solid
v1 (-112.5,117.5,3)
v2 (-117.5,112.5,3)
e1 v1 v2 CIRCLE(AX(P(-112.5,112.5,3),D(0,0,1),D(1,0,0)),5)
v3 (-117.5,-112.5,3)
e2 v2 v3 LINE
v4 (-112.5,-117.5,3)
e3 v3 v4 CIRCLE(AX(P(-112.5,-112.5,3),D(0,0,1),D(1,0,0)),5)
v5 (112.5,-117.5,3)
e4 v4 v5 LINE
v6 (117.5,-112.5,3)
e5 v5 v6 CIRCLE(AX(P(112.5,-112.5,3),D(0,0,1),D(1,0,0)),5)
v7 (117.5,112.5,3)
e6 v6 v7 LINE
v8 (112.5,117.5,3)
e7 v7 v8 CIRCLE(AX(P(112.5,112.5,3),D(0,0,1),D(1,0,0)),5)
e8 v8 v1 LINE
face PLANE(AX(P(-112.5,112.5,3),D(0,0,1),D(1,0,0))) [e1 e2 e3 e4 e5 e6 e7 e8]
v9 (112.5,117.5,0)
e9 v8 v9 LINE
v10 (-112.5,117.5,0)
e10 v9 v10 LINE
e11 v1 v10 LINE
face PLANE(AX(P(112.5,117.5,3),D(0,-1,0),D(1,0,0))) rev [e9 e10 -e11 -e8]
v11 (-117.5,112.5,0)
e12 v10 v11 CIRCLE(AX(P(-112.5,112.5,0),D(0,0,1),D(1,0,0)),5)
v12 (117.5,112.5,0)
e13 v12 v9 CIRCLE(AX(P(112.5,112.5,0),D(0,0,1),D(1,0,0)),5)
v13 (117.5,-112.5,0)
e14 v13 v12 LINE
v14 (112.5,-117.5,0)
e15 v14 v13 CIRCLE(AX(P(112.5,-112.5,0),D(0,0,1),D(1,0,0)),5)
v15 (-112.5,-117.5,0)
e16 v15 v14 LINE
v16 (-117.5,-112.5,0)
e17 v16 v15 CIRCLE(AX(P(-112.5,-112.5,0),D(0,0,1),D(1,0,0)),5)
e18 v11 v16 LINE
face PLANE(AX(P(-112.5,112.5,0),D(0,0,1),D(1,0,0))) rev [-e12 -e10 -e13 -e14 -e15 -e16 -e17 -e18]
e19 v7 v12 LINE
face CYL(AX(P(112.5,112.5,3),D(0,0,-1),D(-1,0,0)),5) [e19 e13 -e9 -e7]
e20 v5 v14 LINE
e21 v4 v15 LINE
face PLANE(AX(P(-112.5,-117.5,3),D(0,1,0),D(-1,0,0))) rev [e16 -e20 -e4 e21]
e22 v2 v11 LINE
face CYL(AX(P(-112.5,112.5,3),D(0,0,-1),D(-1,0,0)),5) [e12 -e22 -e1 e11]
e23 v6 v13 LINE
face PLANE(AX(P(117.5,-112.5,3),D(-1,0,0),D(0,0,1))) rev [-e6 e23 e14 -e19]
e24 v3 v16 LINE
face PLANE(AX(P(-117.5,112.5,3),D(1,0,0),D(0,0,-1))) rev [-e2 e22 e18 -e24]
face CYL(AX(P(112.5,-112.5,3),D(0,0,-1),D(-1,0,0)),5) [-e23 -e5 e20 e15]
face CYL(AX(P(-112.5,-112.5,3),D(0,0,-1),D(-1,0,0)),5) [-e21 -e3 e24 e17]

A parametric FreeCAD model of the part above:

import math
import FreeCAD as App
import Part
import Sketcher
from FreeCAD import Vector

doc = App.newDocument("Part")
body = doc.addObject("PartDesign::Body", "Body")

sketch1 = body.newObject("Sketcher::SketchObject", "Sketch")
sketch1.AttachmentSupport = (doc.getObject("XY_Plane"), [""])
sketch1.MapMode = "FlatFace"
sketch1.addGeometry([
    Part.LineSegment(Vector(-118, 112, 0), Vector(-118, -112, 0)),
    Part.ArcOfCircle(Part.Circle(Vector(-112, -112, 0), Vector(0, 0, 1), 5), math.radians(180), math.radians(270)),
    Part.LineSegment(Vector(-112, -118, 0), Vector(112, -118, 0)),
    Part.ArcOfCircle(Part.Circle(Vector(112, -112, 0), Vector(0, 0, 1), 5), math.radians(-90), math.radians(0)),
    Part.LineSegment(Vector(118, -112, 0), Vector(118, 112, 0)),
    Part.ArcOfCircle(Part.Circle(Vector(112, 112, 0), Vector(0, 0, 1), 5), math.radians(0), math.radians(90)),
    Part.LineSegment(Vector(112, 118, 0), Vector(-112, 118, 0)),
    Part.ArcOfCircle(Part.Circle(Vector(-112, 112, 0), Vector(0, 0, 1), 5), math.radians(90), math.radians(180)),
], False)
sketch1.addConstraint([
    Sketcher.Constraint("Tangent", 0, 2, 1, 1),
    Sketcher.Constraint("Tangent", 1, 2, 2, 1),
    Sketcher.Constraint("Tangent", 2, 2, 3, 1),
    Sketcher.Constraint("Tangent", 3, 2, 4, 1),
    Sketcher.Constraint("Tangent", 4, 2, 5, 1),
    Sketcher.Constraint("Tangent", 5, 2, 6, 1),
    Sketcher.Constraint("Tangent", 6, 2, 7, 1),
    Sketcher.Constraint("Tangent", 7, 2, 0, 1),
    Sketcher.Constraint("Vertical", 0),
    Sketcher.Constraint("Horizontal", 2),
    Sketcher.Constraint("Vertical", 4),
    Sketcher.Constraint("Horizontal", 6),
    Sketcher.Constraint("Equal", 1, 3),
    Sketcher.Constraint("Equal", 3, 5),
    Sketcher.Constraint("Equal", 5, 7),
    Sketcher.Constraint("Symmetric", 1, 3, 5, 3, -1, 1),
    Sketcher.Constraint("Equal", 6, 0),
    Sketcher.Constraint("Radius", 1, 5.0),
    Sketcher.Constraint("DistanceX", 2, 1, 2, 2, 225.0),
])
pad1 = body.newObject("PartDesign::Pad", "Pad")
pad1.Profile = sketch1
pad1.Length = 3

doc.recompute()
